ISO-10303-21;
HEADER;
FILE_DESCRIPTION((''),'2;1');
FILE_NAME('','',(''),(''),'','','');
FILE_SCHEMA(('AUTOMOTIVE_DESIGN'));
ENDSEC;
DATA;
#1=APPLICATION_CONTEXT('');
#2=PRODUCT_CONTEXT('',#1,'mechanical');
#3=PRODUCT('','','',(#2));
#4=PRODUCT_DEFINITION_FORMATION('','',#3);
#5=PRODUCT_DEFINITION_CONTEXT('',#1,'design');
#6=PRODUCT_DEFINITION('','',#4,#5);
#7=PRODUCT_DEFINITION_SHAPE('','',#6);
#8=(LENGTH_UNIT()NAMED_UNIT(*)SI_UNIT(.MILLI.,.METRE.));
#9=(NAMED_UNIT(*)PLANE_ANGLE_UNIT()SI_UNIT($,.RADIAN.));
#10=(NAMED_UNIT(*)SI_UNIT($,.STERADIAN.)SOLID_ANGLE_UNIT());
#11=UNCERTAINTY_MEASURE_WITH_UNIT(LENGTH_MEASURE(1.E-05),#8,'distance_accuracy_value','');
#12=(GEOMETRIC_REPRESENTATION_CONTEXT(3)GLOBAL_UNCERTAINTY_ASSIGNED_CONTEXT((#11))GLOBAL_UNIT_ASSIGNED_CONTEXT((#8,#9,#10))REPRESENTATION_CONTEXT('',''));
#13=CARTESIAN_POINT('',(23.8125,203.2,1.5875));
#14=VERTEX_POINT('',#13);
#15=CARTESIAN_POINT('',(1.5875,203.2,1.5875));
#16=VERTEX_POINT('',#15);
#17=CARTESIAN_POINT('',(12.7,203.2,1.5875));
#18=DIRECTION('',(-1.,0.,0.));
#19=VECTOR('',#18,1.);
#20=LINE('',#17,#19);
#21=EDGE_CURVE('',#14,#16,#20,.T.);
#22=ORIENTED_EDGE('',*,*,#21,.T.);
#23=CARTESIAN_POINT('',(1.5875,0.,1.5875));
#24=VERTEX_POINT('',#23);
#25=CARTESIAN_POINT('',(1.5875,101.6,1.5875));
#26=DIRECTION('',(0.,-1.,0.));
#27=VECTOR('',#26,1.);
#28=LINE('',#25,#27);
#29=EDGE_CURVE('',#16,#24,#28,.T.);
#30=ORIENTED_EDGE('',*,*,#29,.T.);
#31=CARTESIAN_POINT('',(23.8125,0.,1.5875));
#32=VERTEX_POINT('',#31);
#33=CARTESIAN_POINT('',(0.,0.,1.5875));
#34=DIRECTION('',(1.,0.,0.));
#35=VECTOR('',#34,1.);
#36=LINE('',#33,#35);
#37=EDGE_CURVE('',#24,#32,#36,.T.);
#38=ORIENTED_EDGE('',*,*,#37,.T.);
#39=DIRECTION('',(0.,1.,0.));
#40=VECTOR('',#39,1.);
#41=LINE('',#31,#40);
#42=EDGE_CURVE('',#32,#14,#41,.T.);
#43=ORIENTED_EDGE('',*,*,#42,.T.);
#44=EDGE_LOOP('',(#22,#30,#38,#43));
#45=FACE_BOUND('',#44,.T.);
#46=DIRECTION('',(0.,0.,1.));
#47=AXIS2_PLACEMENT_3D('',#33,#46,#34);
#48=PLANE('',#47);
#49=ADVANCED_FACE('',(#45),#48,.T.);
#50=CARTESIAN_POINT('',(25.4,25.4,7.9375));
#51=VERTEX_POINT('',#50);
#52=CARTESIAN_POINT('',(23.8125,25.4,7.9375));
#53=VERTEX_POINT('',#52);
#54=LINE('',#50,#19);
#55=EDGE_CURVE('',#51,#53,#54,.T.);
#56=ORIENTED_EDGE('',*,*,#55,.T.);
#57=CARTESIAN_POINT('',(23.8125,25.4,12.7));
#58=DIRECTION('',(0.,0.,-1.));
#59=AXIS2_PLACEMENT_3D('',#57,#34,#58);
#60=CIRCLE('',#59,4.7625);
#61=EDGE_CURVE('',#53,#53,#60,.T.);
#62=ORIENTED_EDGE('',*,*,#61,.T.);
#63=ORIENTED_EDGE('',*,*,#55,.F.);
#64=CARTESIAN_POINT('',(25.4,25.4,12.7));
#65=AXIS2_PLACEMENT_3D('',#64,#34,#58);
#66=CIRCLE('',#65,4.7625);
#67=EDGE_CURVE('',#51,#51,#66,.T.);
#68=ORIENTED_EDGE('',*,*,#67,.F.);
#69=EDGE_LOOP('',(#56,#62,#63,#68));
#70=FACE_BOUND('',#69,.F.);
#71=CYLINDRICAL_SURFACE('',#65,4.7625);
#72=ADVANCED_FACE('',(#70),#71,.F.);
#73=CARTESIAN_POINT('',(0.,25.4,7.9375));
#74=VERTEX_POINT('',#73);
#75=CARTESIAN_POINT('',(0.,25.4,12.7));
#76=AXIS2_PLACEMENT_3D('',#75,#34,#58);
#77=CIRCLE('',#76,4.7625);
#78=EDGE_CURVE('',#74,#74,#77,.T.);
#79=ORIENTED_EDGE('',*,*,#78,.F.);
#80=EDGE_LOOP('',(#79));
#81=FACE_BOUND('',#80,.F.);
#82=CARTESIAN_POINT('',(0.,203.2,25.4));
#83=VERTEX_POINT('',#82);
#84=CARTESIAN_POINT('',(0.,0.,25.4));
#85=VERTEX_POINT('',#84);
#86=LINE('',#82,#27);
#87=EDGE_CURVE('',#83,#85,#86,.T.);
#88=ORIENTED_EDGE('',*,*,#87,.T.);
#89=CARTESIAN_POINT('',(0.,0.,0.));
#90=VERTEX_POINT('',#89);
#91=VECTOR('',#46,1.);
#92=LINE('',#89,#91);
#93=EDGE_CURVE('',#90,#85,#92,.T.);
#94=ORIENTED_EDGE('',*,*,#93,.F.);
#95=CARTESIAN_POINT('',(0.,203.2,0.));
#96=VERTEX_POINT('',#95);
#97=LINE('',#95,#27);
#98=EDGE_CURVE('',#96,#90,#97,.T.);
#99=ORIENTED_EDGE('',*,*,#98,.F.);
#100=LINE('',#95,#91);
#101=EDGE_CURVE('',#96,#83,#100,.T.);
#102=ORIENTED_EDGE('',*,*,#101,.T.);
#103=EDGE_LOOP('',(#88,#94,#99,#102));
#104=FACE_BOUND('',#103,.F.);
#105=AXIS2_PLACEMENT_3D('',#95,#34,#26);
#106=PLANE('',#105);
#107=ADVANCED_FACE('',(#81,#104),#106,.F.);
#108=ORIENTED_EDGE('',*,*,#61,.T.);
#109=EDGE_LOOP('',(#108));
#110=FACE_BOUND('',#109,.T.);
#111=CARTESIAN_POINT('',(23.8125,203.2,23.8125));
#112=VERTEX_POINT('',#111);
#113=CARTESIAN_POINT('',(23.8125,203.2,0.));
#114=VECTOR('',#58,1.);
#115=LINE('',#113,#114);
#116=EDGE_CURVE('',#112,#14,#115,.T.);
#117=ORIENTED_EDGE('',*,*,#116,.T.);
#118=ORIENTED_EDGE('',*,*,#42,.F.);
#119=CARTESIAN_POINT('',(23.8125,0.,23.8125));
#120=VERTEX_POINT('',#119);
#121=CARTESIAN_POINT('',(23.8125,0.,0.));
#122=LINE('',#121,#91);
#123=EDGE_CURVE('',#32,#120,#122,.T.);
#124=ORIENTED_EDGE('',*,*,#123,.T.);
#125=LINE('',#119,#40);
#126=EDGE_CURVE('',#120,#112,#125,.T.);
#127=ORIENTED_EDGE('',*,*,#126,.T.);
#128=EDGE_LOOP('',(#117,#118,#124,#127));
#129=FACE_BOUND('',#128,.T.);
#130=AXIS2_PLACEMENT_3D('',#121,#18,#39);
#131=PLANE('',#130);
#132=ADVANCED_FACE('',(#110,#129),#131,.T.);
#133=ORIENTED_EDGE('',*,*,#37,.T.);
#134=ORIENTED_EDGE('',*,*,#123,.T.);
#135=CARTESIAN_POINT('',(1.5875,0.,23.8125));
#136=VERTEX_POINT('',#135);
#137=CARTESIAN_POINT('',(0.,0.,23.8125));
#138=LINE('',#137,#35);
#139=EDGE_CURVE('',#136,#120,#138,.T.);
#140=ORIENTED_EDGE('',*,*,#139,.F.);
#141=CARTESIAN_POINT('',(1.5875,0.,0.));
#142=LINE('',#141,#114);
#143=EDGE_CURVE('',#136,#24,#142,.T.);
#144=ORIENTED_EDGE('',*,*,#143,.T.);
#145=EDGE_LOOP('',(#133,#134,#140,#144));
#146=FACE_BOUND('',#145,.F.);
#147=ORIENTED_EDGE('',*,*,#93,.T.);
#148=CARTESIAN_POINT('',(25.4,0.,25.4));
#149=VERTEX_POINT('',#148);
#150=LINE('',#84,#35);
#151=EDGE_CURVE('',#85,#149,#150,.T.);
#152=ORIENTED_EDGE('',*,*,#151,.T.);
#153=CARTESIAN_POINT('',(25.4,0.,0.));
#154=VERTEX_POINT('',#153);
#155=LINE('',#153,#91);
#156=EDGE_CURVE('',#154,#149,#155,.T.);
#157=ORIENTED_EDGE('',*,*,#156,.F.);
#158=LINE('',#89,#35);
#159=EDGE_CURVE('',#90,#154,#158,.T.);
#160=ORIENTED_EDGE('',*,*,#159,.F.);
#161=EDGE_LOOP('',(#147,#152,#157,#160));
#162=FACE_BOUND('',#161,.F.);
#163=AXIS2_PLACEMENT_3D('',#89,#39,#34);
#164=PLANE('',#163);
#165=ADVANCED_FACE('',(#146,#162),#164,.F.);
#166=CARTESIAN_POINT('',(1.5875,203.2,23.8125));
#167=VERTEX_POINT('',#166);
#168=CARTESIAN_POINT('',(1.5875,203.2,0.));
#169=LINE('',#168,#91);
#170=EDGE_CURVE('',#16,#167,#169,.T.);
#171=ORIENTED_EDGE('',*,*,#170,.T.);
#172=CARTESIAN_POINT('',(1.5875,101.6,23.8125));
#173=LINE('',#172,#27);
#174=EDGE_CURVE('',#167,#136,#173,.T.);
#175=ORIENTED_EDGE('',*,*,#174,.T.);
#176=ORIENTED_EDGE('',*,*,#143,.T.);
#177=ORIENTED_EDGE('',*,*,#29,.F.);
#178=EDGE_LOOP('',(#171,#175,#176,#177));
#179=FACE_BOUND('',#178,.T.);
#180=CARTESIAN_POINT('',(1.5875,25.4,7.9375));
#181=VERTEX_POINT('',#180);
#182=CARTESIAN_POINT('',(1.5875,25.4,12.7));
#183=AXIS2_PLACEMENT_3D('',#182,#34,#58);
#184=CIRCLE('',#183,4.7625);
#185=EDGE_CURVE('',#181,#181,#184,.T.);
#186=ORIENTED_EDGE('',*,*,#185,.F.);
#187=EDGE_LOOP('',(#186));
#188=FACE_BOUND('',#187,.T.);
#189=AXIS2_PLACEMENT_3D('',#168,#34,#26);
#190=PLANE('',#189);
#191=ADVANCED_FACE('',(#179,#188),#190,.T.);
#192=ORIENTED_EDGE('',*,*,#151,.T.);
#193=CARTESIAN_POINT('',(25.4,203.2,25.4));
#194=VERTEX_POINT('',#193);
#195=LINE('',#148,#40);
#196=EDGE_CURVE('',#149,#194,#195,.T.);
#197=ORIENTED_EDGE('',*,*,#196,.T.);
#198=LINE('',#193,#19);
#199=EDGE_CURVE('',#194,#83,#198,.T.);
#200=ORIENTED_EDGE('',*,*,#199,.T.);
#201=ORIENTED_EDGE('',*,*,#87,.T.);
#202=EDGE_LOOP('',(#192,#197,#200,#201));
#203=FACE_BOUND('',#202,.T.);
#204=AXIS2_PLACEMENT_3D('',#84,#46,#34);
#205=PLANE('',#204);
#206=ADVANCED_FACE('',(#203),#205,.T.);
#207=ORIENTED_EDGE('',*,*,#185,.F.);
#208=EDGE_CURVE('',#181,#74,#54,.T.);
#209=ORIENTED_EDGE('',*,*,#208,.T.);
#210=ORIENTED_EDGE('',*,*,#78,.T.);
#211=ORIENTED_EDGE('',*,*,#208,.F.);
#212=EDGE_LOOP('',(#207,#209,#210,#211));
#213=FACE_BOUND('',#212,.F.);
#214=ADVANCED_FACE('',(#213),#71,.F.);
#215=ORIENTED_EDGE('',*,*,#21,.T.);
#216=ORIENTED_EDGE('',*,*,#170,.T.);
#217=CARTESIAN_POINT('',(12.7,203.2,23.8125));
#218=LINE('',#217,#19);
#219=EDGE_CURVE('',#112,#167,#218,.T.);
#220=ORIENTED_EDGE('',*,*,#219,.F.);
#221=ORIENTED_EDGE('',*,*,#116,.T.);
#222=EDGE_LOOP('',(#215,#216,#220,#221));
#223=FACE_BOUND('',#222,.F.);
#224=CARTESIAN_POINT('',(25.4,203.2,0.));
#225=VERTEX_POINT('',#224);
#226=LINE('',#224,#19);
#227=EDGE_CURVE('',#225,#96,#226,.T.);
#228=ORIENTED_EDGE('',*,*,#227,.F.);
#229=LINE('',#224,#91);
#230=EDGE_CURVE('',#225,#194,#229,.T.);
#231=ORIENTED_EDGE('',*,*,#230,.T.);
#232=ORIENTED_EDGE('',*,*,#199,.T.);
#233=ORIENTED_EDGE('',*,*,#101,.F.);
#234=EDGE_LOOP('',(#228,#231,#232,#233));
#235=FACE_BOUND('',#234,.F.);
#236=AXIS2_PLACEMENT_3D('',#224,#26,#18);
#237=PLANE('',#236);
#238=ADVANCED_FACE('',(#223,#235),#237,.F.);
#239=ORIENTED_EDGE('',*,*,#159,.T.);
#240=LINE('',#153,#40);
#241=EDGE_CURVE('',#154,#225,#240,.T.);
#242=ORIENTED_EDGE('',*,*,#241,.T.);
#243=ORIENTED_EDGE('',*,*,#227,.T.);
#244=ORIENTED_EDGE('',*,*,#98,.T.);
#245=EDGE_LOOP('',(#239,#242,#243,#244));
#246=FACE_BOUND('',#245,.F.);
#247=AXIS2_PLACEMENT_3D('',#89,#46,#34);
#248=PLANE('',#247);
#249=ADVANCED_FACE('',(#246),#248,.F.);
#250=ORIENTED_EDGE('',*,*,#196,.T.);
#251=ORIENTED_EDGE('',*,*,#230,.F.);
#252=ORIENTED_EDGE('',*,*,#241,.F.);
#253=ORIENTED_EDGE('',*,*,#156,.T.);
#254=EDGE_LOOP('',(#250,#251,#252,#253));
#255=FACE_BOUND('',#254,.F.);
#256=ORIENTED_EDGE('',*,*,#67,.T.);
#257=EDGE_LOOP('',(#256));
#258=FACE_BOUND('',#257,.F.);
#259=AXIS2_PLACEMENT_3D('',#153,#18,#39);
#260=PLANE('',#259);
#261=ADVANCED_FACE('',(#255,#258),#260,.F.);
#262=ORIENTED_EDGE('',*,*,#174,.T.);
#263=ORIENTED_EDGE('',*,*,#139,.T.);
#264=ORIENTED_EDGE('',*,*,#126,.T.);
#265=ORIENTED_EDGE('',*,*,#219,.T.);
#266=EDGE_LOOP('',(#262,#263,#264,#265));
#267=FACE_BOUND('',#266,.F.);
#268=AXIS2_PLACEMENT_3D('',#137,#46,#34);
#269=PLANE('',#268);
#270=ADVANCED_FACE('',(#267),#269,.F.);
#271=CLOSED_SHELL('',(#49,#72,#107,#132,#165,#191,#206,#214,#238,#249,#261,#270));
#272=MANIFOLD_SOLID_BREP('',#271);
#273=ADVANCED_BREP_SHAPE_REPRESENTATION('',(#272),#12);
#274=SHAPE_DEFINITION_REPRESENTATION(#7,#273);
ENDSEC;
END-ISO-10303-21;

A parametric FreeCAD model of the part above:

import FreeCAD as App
import Part
import Sketcher
Q = App.Units.Quantity


def faces_at(feature, points):
    """Names of the faces that lie closest to the given points."""
    faces = feature.Shape.Faces
    near = lambda p: min(range(len(faces)), key=lambda i: faces[i].distToShape(Part.Vertex(*p))[0])
    return sorted({f"Face{near(p) + 1}" for p in points})


def add_polygon(sketch, points):
    """Adds a closed chain of lines whose ends are joined by coincident constraints."""
    first, n = sketch.GeometryCount, len(points)
    for a, b in zip(points, points[1:] + points[:1]):
        sketch.addGeometry(Part.LineSegment(App.Vector(*a, 0), App.Vector(*b, 0)), False)
    for i in range(n):
        sketch.addConstraint(Sketcher.Constraint("Coincident", first + i, 2, first + (i + 1) % n, 1))

doc = App.newDocument("Part")
body = doc.addObject("PartDesign::Body", "Body")

# Sketch on XY plane
sketch1 = body.newObject("Sketcher::SketchObject", "Sketch")
sketch1.AttachmentSupport = (doc.getObject("XY_Plane"), [""])
sketch1.MapMode = "FlatFace"
add_polygon(sketch1, [(0, 203), (0, 0), (25, 0), (25, 203)])  # lines 0-3
sketch1.addConstraint([
    Sketcher.Constraint("Vertical", 0),
    Sketcher.Constraint("Horizontal", 1),
    Sketcher.Constraint("Vertical", 2),
    Sketcher.Constraint("Horizontal", 3),
    Sketcher.Constraint("Coincident", 0, 2, -1, 1),
    Sketcher.Constraint("DistanceX", 1, 1, 1, 2, Q("1 in")),
    Sketcher.Constraint("DistanceY", 0, 2, 0, 1, Q("8 in")),
])
pad1 = body.newObject("PartDesign::Pad", "Pad")
pad1.Profile = sketch1
pad1.Length = Q("1 in")
doc.recompute()

thickness = body.newObject("PartDesign::Thickness", "Thickness")
thickness.Base = (pad1, faces_at(pad1, [(16.933, 203.2, 8.467), (8.467, 0, 8.467)]))
thickness.Value = Q("0.0625 in")
thickness.Reversed = True
thickness.Join = "Intersection"

# Sketch on YZ plane
sketch2 = body.newObject("Sketcher::SketchObject", "Sketch001")
sketch2.AttachmentSupport = (doc.getObject("YZ_Plane"), [""])
sketch2.MapMode = "FlatFace"
sketch2.AttachmentOffset = App.Placement(App.Vector(0, 0, 1 * 25.4), App.Rotation())
sketch2.addGeometry(Part.Circle(App.Vector(25.4, 12.7, 0), App.Vector(0, 0, 1), 4.8), False)
sketch2.addConstraint([
    Sketcher.Constraint("Diameter", 0, Q("0.375 in")),
    Sketcher.Constraint("DistanceX", -1, 1, 0, 3, Q("1 in")),
    Sketcher.Constraint("DistanceY", -1, 1, 0, 3, Q("0.5 in")),
])
pocket1 = body.newObject("PartDesign::Pocket", "Pocket")
pocket1.Profile = sketch2
pocket1.Type = "ThroughAll"

doc.recompute()
